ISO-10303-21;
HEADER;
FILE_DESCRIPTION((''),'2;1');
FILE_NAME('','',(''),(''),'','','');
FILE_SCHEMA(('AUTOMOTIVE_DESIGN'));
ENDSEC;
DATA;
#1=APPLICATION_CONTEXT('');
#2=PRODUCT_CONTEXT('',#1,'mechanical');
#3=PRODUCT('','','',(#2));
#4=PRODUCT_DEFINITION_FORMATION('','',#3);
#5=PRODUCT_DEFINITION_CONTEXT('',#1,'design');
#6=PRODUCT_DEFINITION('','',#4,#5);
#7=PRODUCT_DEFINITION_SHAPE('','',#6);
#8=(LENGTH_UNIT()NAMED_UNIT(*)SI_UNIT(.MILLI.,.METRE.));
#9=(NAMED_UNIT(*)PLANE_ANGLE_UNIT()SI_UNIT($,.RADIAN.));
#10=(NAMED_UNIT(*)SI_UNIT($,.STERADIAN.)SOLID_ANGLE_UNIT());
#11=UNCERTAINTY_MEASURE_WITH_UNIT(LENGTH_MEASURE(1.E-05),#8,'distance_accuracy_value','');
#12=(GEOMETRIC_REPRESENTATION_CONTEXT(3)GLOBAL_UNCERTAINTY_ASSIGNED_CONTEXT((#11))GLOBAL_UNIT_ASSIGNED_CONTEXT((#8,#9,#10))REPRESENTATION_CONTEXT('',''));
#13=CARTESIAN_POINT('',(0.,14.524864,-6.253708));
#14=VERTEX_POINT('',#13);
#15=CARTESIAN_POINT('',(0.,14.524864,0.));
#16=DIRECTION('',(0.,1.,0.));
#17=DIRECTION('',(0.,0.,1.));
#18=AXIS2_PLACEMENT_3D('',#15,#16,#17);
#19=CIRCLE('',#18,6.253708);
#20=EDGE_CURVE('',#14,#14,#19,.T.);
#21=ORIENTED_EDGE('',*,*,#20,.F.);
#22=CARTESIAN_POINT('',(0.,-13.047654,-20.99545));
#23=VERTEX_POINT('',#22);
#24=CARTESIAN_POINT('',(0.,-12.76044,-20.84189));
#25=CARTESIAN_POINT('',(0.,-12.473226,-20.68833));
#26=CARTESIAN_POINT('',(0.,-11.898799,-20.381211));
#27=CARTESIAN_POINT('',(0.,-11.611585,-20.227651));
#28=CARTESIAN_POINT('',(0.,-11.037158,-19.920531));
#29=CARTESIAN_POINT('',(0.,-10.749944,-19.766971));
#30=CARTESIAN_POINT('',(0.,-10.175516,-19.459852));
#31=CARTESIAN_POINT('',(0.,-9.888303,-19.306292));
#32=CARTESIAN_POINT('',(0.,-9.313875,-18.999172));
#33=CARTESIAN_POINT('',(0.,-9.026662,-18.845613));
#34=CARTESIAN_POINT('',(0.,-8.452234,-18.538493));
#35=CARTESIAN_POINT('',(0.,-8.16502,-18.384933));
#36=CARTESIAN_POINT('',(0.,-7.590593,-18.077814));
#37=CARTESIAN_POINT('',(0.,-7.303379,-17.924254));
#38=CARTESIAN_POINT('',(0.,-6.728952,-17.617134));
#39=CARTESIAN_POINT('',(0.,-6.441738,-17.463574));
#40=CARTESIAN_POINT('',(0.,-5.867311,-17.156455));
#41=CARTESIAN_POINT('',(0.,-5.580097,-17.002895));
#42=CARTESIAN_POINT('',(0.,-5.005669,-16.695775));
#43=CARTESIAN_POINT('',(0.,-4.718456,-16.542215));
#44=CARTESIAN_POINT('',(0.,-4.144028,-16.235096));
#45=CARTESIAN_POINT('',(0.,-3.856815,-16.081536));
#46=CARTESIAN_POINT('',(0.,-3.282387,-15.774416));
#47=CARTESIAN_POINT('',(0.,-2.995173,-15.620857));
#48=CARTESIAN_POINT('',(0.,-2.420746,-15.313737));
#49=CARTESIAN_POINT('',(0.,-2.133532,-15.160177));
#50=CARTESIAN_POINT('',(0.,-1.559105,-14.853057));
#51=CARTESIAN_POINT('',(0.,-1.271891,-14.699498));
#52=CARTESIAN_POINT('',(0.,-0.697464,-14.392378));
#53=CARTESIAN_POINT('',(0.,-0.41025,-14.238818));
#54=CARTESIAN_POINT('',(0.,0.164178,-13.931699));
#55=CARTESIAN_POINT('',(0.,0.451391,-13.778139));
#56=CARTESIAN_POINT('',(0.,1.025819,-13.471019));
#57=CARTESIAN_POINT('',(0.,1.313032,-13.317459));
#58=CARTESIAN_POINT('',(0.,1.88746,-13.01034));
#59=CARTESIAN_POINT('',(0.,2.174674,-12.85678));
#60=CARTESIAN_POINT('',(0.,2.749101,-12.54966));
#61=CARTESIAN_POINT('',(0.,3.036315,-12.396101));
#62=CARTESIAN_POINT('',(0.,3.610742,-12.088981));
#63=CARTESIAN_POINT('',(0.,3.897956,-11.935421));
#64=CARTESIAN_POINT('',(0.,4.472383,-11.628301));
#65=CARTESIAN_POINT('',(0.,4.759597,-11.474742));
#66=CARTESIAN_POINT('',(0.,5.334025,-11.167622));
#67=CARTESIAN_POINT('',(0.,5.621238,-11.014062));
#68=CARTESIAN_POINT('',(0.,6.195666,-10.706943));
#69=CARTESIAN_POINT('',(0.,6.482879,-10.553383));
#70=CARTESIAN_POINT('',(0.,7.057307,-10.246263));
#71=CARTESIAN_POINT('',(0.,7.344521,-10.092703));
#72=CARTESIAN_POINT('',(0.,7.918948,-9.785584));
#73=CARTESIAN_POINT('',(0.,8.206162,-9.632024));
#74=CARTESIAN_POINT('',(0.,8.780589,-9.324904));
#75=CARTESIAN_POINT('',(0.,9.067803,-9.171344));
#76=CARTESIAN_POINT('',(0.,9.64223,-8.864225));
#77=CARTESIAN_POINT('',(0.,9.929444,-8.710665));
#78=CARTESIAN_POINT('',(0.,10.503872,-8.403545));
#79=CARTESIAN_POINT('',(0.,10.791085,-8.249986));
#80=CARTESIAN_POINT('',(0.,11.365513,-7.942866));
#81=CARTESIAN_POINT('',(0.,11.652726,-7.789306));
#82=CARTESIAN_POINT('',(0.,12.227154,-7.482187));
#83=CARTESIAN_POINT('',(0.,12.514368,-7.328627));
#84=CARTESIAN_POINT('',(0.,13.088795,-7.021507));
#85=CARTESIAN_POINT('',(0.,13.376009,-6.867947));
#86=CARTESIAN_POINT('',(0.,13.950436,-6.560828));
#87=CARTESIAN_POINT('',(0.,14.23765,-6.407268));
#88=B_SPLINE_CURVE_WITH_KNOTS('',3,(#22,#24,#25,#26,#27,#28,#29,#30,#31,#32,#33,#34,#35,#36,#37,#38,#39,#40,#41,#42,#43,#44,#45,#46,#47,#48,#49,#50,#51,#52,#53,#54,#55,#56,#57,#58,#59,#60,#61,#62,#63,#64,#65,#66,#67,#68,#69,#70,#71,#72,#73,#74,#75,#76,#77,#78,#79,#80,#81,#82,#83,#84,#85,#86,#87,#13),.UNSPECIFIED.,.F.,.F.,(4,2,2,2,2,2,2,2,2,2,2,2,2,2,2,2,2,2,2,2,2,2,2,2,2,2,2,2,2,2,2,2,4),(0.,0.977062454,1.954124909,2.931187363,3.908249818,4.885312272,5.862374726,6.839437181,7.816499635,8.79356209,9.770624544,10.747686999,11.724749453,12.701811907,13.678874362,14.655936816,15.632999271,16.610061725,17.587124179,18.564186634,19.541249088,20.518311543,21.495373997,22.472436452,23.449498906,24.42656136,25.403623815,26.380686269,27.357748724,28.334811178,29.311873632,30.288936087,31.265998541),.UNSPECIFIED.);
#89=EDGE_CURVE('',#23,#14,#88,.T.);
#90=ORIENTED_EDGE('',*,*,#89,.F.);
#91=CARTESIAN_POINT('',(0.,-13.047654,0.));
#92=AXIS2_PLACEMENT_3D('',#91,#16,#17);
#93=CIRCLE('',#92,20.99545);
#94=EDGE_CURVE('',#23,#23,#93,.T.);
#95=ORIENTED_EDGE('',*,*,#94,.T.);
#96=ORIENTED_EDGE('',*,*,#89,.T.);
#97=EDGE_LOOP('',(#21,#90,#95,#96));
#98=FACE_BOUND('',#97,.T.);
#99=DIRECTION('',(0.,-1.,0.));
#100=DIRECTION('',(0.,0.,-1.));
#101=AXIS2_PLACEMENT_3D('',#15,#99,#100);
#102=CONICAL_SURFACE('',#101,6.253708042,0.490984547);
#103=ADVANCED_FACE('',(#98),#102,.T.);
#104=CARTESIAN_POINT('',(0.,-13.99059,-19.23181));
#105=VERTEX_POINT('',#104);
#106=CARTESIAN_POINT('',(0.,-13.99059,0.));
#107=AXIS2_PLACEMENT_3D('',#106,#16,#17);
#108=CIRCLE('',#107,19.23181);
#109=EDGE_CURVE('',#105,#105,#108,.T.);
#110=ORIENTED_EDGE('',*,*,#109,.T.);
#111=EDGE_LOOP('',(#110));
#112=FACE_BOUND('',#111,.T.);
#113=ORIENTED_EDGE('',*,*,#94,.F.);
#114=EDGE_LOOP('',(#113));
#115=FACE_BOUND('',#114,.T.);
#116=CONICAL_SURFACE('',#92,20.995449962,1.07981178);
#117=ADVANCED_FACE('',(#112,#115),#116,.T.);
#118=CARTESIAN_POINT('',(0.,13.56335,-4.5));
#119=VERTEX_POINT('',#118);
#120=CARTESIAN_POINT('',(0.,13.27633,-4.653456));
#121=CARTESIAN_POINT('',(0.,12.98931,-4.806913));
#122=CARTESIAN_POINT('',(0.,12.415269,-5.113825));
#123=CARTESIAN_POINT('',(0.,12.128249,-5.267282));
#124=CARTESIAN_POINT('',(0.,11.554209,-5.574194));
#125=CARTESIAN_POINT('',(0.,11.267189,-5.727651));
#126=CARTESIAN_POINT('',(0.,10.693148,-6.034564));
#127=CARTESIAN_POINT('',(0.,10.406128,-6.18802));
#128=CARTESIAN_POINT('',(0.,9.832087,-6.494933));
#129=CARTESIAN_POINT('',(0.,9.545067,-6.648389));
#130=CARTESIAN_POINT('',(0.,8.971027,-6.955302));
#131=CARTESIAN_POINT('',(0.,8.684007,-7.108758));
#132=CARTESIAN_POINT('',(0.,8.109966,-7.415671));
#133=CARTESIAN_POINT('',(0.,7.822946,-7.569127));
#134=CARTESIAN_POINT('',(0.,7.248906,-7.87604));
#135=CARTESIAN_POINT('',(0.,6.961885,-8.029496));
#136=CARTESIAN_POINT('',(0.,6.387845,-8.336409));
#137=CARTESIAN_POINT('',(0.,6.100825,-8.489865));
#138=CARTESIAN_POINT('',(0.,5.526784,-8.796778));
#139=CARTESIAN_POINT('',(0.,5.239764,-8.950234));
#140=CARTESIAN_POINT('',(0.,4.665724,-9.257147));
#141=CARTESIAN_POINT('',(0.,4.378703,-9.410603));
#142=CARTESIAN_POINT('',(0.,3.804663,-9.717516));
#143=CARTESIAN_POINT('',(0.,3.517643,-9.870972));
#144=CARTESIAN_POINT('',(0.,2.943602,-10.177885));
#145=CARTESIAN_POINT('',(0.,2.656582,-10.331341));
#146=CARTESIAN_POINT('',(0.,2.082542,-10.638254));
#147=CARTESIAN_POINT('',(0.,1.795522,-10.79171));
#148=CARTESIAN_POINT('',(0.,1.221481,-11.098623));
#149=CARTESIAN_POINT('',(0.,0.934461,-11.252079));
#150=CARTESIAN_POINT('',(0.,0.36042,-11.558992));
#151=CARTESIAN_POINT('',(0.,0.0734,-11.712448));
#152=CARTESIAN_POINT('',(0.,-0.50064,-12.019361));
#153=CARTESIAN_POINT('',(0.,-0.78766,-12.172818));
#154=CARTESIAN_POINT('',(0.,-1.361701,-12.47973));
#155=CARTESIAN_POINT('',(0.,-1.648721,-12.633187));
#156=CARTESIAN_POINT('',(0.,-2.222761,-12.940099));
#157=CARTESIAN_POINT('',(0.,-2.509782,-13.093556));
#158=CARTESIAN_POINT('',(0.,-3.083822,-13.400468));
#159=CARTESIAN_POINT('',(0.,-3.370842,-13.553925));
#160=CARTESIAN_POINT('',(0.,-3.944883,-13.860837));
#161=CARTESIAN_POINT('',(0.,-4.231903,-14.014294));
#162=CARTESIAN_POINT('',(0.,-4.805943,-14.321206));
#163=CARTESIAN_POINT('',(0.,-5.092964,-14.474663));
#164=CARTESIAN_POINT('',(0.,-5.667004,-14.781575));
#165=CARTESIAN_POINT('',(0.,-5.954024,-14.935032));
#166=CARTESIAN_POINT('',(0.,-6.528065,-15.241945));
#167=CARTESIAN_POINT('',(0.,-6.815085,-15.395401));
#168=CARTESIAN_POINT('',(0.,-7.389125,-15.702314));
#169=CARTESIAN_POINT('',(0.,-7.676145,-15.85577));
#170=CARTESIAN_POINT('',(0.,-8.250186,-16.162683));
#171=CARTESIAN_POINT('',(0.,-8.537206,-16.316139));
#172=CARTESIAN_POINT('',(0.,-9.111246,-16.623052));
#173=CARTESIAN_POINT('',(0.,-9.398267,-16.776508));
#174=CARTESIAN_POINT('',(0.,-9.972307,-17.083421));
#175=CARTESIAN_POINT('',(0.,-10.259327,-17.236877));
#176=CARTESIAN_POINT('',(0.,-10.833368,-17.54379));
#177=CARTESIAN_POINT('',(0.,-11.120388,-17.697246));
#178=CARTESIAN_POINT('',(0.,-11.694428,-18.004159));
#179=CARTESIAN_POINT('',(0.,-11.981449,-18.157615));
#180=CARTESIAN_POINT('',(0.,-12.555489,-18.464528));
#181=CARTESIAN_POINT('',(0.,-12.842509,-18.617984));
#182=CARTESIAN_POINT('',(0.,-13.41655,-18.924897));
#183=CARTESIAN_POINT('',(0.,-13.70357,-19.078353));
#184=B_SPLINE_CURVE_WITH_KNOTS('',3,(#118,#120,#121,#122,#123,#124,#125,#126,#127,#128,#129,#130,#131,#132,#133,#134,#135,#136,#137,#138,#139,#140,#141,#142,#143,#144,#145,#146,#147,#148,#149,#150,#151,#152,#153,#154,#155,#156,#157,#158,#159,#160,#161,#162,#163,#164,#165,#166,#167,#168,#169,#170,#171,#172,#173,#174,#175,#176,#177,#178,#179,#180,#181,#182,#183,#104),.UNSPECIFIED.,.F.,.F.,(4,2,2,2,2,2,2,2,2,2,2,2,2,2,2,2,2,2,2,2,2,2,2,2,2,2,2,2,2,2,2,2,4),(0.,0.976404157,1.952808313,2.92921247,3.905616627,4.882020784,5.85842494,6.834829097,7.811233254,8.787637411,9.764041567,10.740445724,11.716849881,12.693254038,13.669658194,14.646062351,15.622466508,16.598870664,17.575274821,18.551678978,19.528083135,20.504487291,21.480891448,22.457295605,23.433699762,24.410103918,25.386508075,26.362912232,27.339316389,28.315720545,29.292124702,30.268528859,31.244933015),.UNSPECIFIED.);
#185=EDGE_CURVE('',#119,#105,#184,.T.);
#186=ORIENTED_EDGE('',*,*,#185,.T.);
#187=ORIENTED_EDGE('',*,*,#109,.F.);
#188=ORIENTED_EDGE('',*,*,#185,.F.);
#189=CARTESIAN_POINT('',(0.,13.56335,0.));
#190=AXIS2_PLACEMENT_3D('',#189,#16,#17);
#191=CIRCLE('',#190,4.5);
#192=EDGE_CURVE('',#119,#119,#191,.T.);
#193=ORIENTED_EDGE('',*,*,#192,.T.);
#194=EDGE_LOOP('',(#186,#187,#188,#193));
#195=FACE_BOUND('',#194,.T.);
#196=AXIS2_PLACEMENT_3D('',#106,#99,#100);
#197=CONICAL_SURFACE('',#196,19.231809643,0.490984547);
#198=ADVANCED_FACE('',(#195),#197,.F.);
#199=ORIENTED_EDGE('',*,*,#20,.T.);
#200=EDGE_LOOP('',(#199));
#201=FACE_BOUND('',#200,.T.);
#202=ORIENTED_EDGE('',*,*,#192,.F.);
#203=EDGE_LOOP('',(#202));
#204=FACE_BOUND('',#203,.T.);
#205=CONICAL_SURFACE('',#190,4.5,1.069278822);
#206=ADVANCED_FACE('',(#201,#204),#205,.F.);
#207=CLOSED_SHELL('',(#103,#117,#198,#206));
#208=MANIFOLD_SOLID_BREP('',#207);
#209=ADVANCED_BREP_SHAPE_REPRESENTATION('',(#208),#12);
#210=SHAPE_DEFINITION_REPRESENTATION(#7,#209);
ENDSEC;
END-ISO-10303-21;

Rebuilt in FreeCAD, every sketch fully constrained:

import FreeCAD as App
import Part
import Sketcher

V = App.Vector
Q = App.Units.Quantity


def add_polygon(sketch, points):
    """Adds a closed chain of lines whose ends are joined by coincident constraints."""
    first, n = sketch.GeometryCount, len(points)
    for a, b in zip(points, points[1:] + points[:1]):
        sketch.addGeometry(Part.LineSegment(App.Vector(*a, 0), App.Vector(*b, 0)), False)
    for i in range(n):
        sketch.addConstraint(Sketcher.Constraint("Coincident", first + i, 2, first + (i + 1) % n, 1))

doc = App.newDocument("Part")
params = doc.addObject("Spreadsheet::Sheet", "Params")
for row, (alias, value) in enumerate([
    ("sketch1_length", "2 mm"),
    ("revolution_angle", "360 deg"),
], start=1):
    params.set(f"A{row}", alias)
    params.set(f"B{row}", "=" + value)
    params.setAlias(f"B{row}", alias)

body = doc.addObject("PartDesign::Body", "Body")

sketch1 = body.newObject("Sketcher::SketchObject", "Sketch")
sketch1.AttachmentSupport = (doc.getObject("XY_Plane"), [""])
sketch1.MapMode = "FlatFace"
add_polygon(sketch1, [(-19.23181, -13.99059), (-4.5, 13.56335), (-6.253708, 14.524864), (-20.99545, -13.047654)])
sketch1.addConstraint([
    Sketcher.Constraint("Parallel", 0, 2),
    Sketcher.Constraint("Perpendicular", 2, 3),
    Sketcher.Constraint("Distance", 1, Q("2 mm")),
    Sketcher.Constraint("DistanceX", 0, 2, -1, 1, Q("4.5 mm")),
    Sketcher.Constraint("Distance", 2, Q("31.265999 mm")),
    Sketcher.Constraint("DistanceX", 3, 2, 1, 2, Q("12.978102 mm")),
    Sketcher.Constraint("Distance", 3, Q("1.999889 mm")),
    Sketcher.Constraint("DistanceY", -1, 1, 0, 2, Q("13.56335 mm")),
])
sketch1.setExpression("Constraints[6]", "Params.sketch1_length")
revolution = body.newObject("PartDesign::Revolution", "Revolution")
revolution.Profile = sketch1
revolution.ReferenceAxis = (sketch1, ["V_Axis"])
revolution.setExpression("Angle", "Params.revolution_angle")

doc.recompute()
